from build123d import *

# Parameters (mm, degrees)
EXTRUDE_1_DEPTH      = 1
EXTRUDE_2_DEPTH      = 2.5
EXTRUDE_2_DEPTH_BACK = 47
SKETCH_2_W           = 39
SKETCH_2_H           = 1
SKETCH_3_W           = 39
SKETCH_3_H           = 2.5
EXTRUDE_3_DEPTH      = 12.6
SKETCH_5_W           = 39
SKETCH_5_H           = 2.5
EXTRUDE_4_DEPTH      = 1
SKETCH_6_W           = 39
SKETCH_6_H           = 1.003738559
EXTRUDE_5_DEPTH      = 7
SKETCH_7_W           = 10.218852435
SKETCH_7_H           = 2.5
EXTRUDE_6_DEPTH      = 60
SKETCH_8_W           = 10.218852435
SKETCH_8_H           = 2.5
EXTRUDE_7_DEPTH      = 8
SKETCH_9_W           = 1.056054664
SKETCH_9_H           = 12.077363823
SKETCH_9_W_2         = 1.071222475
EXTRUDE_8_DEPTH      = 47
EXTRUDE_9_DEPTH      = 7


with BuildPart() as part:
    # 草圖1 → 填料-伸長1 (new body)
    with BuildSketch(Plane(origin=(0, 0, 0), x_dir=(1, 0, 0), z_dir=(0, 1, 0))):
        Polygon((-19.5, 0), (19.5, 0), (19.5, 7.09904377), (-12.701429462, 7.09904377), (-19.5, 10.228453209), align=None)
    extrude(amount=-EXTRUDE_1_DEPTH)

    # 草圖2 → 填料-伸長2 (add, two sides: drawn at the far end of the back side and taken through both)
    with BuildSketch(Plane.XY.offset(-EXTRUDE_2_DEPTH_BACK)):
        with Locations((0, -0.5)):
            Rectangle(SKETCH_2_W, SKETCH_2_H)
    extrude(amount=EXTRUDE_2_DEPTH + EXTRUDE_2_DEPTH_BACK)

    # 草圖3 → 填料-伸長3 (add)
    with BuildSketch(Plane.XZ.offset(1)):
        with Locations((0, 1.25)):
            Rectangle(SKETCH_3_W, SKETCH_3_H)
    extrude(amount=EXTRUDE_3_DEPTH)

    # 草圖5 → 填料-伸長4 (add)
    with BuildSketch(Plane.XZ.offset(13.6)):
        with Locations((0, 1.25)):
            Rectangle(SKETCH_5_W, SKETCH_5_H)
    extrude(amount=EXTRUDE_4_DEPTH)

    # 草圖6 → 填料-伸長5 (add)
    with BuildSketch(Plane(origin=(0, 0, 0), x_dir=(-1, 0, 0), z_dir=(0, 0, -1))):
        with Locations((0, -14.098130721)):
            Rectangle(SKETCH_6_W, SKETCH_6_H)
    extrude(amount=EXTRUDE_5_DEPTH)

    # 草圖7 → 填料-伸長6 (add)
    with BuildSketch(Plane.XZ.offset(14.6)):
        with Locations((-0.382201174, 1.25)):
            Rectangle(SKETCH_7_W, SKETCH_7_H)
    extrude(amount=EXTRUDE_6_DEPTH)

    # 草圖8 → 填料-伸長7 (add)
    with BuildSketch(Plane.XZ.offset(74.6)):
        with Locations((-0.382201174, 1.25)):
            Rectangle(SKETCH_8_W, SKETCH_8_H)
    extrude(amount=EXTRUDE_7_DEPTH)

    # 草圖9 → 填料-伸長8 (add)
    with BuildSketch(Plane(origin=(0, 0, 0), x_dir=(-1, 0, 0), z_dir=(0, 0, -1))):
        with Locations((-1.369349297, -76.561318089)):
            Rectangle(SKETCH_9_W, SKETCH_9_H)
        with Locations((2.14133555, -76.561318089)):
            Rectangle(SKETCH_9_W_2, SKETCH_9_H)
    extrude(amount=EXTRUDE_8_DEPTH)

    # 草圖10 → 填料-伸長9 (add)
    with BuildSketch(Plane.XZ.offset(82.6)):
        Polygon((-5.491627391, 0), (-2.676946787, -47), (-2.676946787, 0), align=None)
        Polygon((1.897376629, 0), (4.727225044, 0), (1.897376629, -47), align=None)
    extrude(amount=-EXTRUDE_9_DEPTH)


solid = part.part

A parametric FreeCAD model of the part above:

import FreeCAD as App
import Part
import Sketcher

V = App.Vector
Q = App.Units.Quantity

doc = App.newDocument("Part")
body = doc.addObject("PartDesign::Body", "Body")

sketch1 = body.newObject("Sketcher::SketchObject", "Sketch")
sketch1.AttachmentSupport = (doc.getObject("XZ_Plane"), [""])
sketch1.MapMode = "FlatFace"
sketch1.addGeometry([
    Part.LineSegment(V(-19.5, 0, 0), V(19.5, 0, 0)),
    Part.LineSegment(V(19.5, 0, 0), V(19.5, -7.099044, 0)),
    Part.LineSegment(V(19.5, -7.099044, 0), V(-12.701429, -7.099044, 0)),
    Part.LineSegment(V(-12.701429, -7.099044, 0), V(-19.5, -10.228453, 0)),
    Part.LineSegment(V(-19.5, -10.228453, 0), V(-19.5, 0, 0)),
], False)
sketch1.addConstraint([
    Sketcher.Constraint("Coincident", 0, 2, 1, 1),
    Sketcher.Constraint("Coincident", 1, 2, 2, 1),
    Sketcher.Constraint("Coincident", 2, 2, 3, 1),
    Sketcher.Constraint("Coincident", 3, 2, 4, 1),
    Sketcher.Constraint("Coincident", 4, 2, 0, 1),
    Sketcher.Constraint("Horizontal", 0),
    Sketcher.Constraint("Vertical", 1),
    Sketcher.Constraint("Horizontal", 2),
    Sketcher.Constraint("Vertical", 4),
    Sketcher.Constraint("Symmetric", 0, 2, 4, 2, -1, 1),
    Sketcher.Constraint("DistanceX", 0, 1, 0, 2, Q("39 mm")),
    Sketcher.Constraint("DistanceX", 2, 2, 2, 1, Q("32.201429 mm")),
    Sketcher.Constraint("DistanceY", 1, 2, 1, 1, Q("7.099044 mm")),
    Sketcher.Constraint("DistanceY", 4, 1, 4, 2, Q("10.228453 mm")),
])
pad1 = body.newObject("PartDesign::Pad", "Pad")
pad1.Profile = sketch1
pad1.Length = 1

sketch2 = body.newObject("Sketcher::SketchObject", "Sketch001")
sketch2.AttachmentSupport = (doc.getObject("XY_Plane"), [""])
sketch2.MapMode = "FlatFace"
sketch2.addGeometry([
    Part.LineSegment(V(-19.5, 0, 0), V(-19.5, -1, 0)),
    Part.LineSegment(V(-19.5, -1, 0), V(19.5, -1, 0)),
    Part.LineSegment(V(19.5, -1, 0), V(19.5, 0, 0)),
    Part.LineSegment(V(19.5, 0, 0), V(-19.5, 0, 0)),
], False)
sketch2.addConstraint([
    Sketcher.Constraint("Coincident", 0, 2, 1, 1),
    Sketcher.Constraint("Coincident", 1, 2, 2, 1),
    Sketcher.Constraint("Coincident", 2, 2, 3, 1),
    Sketcher.Constraint("Coincident", 3, 2, 0, 1),
    Sketcher.Constraint("Vertical", 0),
    Sketcher.Constraint("Horizontal", 1),
    Sketcher.Constraint("Vertical", 2),
    Sketcher.Constraint("Horizontal", 3),
    Sketcher.Constraint("Symmetric", 2, 2, 3, 2, -1, 1),
    Sketcher.Constraint("DistanceX", 1, 1, 1, 2, Q("39 mm")),
    Sketcher.Constraint("DistanceY", 0, 2, 0, 1, Q("1 mm")),
])
pad2 = body.newObject("PartDesign::Pad", "Pad001")
pad2.Profile = sketch2
pad2.Type = "TwoLengths"
pad2.Length = 2.5
pad2.Length2 = 47

sketch3 = body.newObject("Sketcher::SketchObject", "Sketch002")
sketch3.AttachmentSupport = (doc.getObject("XZ_Plane"), [""])
sketch3.MapMode = "FlatFace"
sketch3.AttachmentOffset = App.Placement(V(0, 0, 1), App.Rotation())
sketch3.addGeometry([
    Part.LineSegment(V(-19.5, 2.5, 0), V(-19.5, 0, 0)),
    Part.LineSegment(V(-19.5, 0, 0), V(19.5, 0, 0)),
    Part.LineSegment(V(19.5, 0, 0), V(19.5, 2.5, 0)),
    Part.LineSegment(V(19.5, 2.5, 0), V(-19.5, 2.5, 0)),
], False)
sketch3.addConstraint([
    Sketcher.Constraint("Coincident", 0, 2, 1, 1),
    Sketcher.Constraint("Coincident", 1, 2, 2, 1),
    Sketcher.Constraint("Coincident", 2, 2, 3, 1),
    Sketcher.Constraint("Coincident", 3, 2, 0, 1),
    Sketcher.Constraint("Vertical", 0),
    Sketcher.Constraint("Horizontal", 1),
    Sketcher.Constraint("Vertical", 2),
    Sketcher.Constraint("Horizontal", 3),
    Sketcher.Constraint("Symmetric", 0, 2, 1, 2, -1, 1),
    Sketcher.Constraint("DistanceX", 1, 1, 1, 2, Q("39 mm")),
    Sketcher.Constraint("DistanceY", 0, 2, 0, 1, Q("2.5 mm")),
])
pad3 = body.newObject("PartDesign::Pad", "Pad002")
pad3.Profile = sketch3
pad3.Length = 12.6

sketch4 = body.newObject("Sketcher::SketchObject", "Sketch003")
sketch4.AttachmentSupport = (doc.getObject("XZ_Plane"), [""])
sketch4.MapMode = "FlatFace"
sketch4.AttachmentOffset = App.Placement(V(0, 0, 13.6), App.Rotation())
sketch4.addGeometry([
    Part.LineSegment(V(-19.5, 2.5, 0), V(-19.5, 0, 0)),
    Part.LineSegment(V(-19.5, 0, 0), V(19.5, 0, 0)),
    Part.LineSegment(V(19.5, 0, 0), V(19.5, 2.5, 0)),
    Part.LineSegment(V(19.5, 2.5, 0), V(-19.5, 2.5, 0)),
], False)
sketch4.addConstraint([
    Sketcher.Constraint("Coincident", 0, 2, 1, 1),
    Sketcher.Constraint("Coincident", 1, 2, 2, 1),
    Sketcher.Constraint("Coincident", 2, 2, 3, 1),
    Sketcher.Constraint("Coincident", 3, 2, 0, 1),
    Sketcher.Constraint("Vertical", 0),
    Sketcher.Constraint("Horizontal", 1),
    Sketcher.Constraint("Vertical", 2),
    Sketcher.Constraint("Horizontal", 3),
    Sketcher.Constraint("Symmetric", 0, 2, 1, 2, -1, 1),
    Sketcher.Constraint("DistanceX", 1, 1, 1, 2, Q("39 mm")),
    Sketcher.Constraint("DistanceY", 0, 2, 0, 1, Q("2.5 mm")),
])
pad4 = body.newObject("PartDesign::Pad", "Pad003")
pad4.Profile = sketch4
pad4.Length = 1

sketch5 = body.newObject("Sketcher::SketchObject", "Sketch004")
sketch5.AttachmentSupport = (doc.getObject("XY_Plane"), [""])
sketch5.MapMode = "FlatFace"
sketch5.addGeometry([
    Part.LineSegment(V(19.5, -13.596261, 0), V(19.5, -14.6, 0)),
    Part.LineSegment(V(19.5, -14.6, 0), V(-19.5, -14.6, 0)),
    Part.LineSegment(V(-19.5, -14.6, 0), V(-19.5, -13.596261, 0)),
    Part.LineSegment(V(-19.5, -13.596261, 0), V(19.5, -13.596261, 0)),
], False)
sketch5.addConstraint([
    Sketcher.Constraint("Coincident", 0, 2, 1, 1),
    Sketcher.Constraint("Coincident", 1, 2, 2, 1),
    Sketcher.Constraint("Coincident", 2, 2, 3, 1),
    Sketcher.Constraint("Coincident", 3, 2, 0, 1),
    Sketcher.Constraint("Vertical", 0),
    Sketcher.Constraint("Horizontal", 1),
    Sketcher.Constraint("Vertical", 2),
    Sketcher.Constraint("Horizontal", 3),
    Sketcher.Constraint("DistanceX", 1, 2, 1, 1, Q("39 mm")),
    Sketcher.Constraint("DistanceX", -1, 1, 0, 2, Q("19.5 mm")),
    Sketcher.Constraint("DistanceY", 0, 2, -1, 1, Q("14.6 mm")),
    Sketcher.Constraint("DistanceY", 0, 2, 0, 1, Q("1.003739 mm")),
])
pad5 = body.newObject("PartDesign::Pad", "Pad004")
pad5.Profile = sketch5
pad5.Length = 7
pad5.Reversed = True

sketch6 = body.newObject("Sketcher::SketchObject", "Sketch005")
sketch6.AttachmentSupport = (doc.getObject("XZ_Plane"), [""])
sketch6.MapMode = "FlatFace"
sketch6.AttachmentOffset = App.Placement(V(0, 0, 14.6), App.Rotation())
sketch6.addGeometry([
    Part.LineSegment(V(-5.491627, 2.5, 0), V(-5.491627, 0, 0)),
    Part.LineSegment(V(-5.491627, 0, 0), V(4.727225, 0, 0)),
    Part.LineSegment(V(4.727225, 0, 0), V(4.727225, 2.5, 0)),
    Part.LineSegment(V(4.727225, 2.5, 0), V(-5.491627, 2.5, 0)),
], False)
sketch6.addConstraint([
    Sketcher.Constraint("Coincident", 0, 2, 1, 1),
    Sketcher.Constraint("Coincident", 1, 2, 2, 1),
    Sketcher.Constraint("Coincident", 2, 2, 3, 1),
    Sketcher.Constraint("Coincident", 3, 2, 0, 1),
    Sketcher.Constraint("Vertical", 0),
    Sketcher.Constraint("Horizontal", 1),
    Sketcher.Constraint("Vertical", 2),
    Sketcher.Constraint("Horizontal", 3),
    Sketcher.Constraint("PointOnObject", 0, 2, -1),
    Sketcher.Constraint("DistanceY", 0, 2, 0, 1, Q("2.5 mm")),
    Sketcher.Constraint("DistanceX", 1, 1, 1, 2, Q("10.218852 mm")),
    Sketcher.Constraint("DistanceX", 0, 2, -1, 1, Q("5.491627 mm")),
])
pad6 = body.newObject("PartDesign::Pad", "Pad005")
pad6.Profile = sketch6
pad6.Length = 60

sketch7 = body.newObject("Sketcher::SketchObject", "Sketch006")
sketch7.AttachmentSupport = (doc.getObject("XZ_Plane"), [""])
sketch7.MapMode = "FlatFace"
sketch7.AttachmentOffset = App.Placement(V(0, 0, 74.6), App.Rotation())
sketch7.addGeometry([
    Part.LineSegment(V(-5.491627, 2.5, 0), V(-5.491627, 0, 0)),
    Part.LineSegment(V(-5.491627, 0, 0), V(4.727225, 0, 0)),
    Part.LineSegment(V(4.727225, 0, 0), V(4.727225, 2.5, 0)),
    Part.LineSegment(V(4.727225, 2.5, 0), V(-5.491627, 2.5, 0)),
], False)
sketch7.addConstraint([
    Sketcher.Constraint("Coincident", 0, 2, 1, 1),
    Sketcher.Constraint("Coincident", 1, 2, 2, 1),
    Sketcher.Constraint("Coincident", 2, 2, 3, 1),
    Sketcher.Constraint("Coincident", 3, 2, 0, 1),
    Sketcher.Constraint("Vertical", 0),
    Sketcher.Constraint("Horizontal", 1),
    Sketcher.Constraint("Vertical", 2),
    Sketcher.Constraint("Horizontal", 3),
    Sketcher.Constraint("PointOnObject", 0, 2, -1),
    Sketcher.Constraint("DistanceY", 0, 2, 0, 1, Q("2.5 mm")),
    Sketcher.Constraint("DistanceX", 1, 1, 1, 2, Q("10.218852 mm")),
    Sketcher.Constraint("DistanceX", 0, 2, -1, 1, Q("5.491627 mm")),
])
pad7 = body.newObject("PartDesign::Pad", "Pad006")
pad7.Profile = sketch7
pad7.Length = 8

sketch8 = body.newObject("Sketcher::SketchObject", "Sketch007")
sketch8.AttachmentSupport = (doc.getObject("XY_Plane"), [""])
sketch8.MapMode = "FlatFace"
sketch8.addGeometry([
    Part.LineSegment(V(1.897377, -70.522636, 0), V(1.897377, -82.6, 0)),
    Part.LineSegment(V(1.897377, -82.6, 0), V(0.841322, -82.6, 0)),
    Part.LineSegment(V(0.841322, -82.6, 0), V(0.841322, -70.522636, 0)),
    Part.LineSegment(V(0.841322, -70.522636, 0), V(1.897377, -70.522636, 0)),
    Part.LineSegment(V(-1.605724, -70.522636, 0), V(-1.605724, -82.6, 0)),
    Part.LineSegment(V(-1.605724, -82.6, 0), V(-2.676947, -82.6, 0)),
    Part.LineSegment(V(-2.676947, -82.6, 0), V(-2.676947, -70.522636, 0)),
    Part.LineSegment(V(-2.676947, -70.522636, 0), V(-1.605724, -70.522636, 0)),
], False)
sketch8.addConstraint([
    Sketcher.Constraint("Coincident", 0, 2, 1, 1),
    Sketcher.Constraint("Coincident", 1, 2, 2, 1),
    Sketcher.Constraint("Coincident", 2, 2, 3, 1),
    Sketcher.Constraint("Coincident", 3, 2, 0, 1),
    Sketcher.Constraint("Coincident", 4, 2, 5, 1),
    Sketcher.Constraint("Coincident", 5, 2, 6, 1),
    Sketcher.Constraint("Coincident", 6, 2, 7, 1),
    Sketcher.Constraint("Coincident", 7, 2, 4, 1),
    Sketcher.Constraint("Vertical", 0),
    Sketcher.Constraint("Horizontal", 1),
    Sketcher.Constraint("Vertical", 2),
    Sketcher.Constraint("Horizontal", 3),
    Sketcher.Constraint("Vertical", 4),
    Sketcher.Constraint("Horizontal", 5),
    Sketcher.Constraint("Vertical", 6),
    Sketcher.Constraint("Horizontal", 7),
    Sketcher.Constraint("Horizontal", 1, 2, 4, 2),
    Sketcher.Constraint("Horizontal", 3, 2, 6, 2),
    Sketcher.Constraint("DistanceY", 0, 2, -1, 1, Q("82.6 mm")),
    Sketcher.Constraint("DistanceX", 4, 2, 0, 2, Q("3.503101 mm")),
    Sketcher.Constraint("DistanceX", 1, 2, 1, 1, Q("1.056055 mm")),
    Sketcher.Constraint("DistanceX", 5, 2, 5, 1, Q("1.071222 mm")),
    Sketcher.Constraint("DistanceY", 0, 2, 0, 1, Q("12.077364 mm")),
    Sketcher.Constraint("DistanceX", -1, 1, 1, 2, Q("0.841322 mm")),
])
pad8 = body.newObject("PartDesign::Pad", "Pad007")
pad8.Profile = sketch8
pad8.Length = 47
pad8.Reversed = True

sketch9 = body.newObject("Sketcher::SketchObject", "Sketch008")
sketch9.AttachmentSupport = (doc.getObject("XZ_Plane"), [""])
sketch9.MapMode = "FlatFace"
sketch9.AttachmentOffset = App.Placement(V(0, 0, 82.6), App.Rotation())
sketch9.addGeometry([
    Part.LineSegment(V(-5.491627, 0, 0), V(-2.676947, -47, 0)),
    Part.LineSegment(V(-2.676947, -47, 0), V(-2.676947, 0, 0)),
    Part.LineSegment(V(-2.676947, 0, 0), V(-5.491627, 0, 0)),
    Part.LineSegment(V(4.727225, 0, 0), V(1.897377, 0, 0)),
    Part.LineSegment(V(1.897377, 0, 0), V(1.897377, -47, 0)),
    Part.LineSegment(V(1.897377, -47, 0), V(4.727225, 0, 0)),
], False)
sketch9.addConstraint([
    Sketcher.Constraint("Coincident", 0, 2, 1, 1),
    Sketcher.Constraint("Coincident", 1, 2, 2, 1),
    Sketcher.Constraint("Coincident", 2, 2, 0, 1),
    Sketcher.Constraint("Coincident", 3, 2, 4, 1),
    Sketcher.Constraint("Coincident", 4, 2, 5, 1),
    Sketcher.Constraint("Coincident", 5, 2, 3, 1),
    Sketcher.Constraint("Vertical", 1),
    Sketcher.Constraint("Horizontal", 2),
    Sketcher.Constraint("Horizontal", 3),
    Sketcher.Constraint("Vertical", 4),
    Sketcher.Constraint("PointOnObject", 1, 2, -1),
    Sketcher.Constraint("PointOnObject", 3, 2, -1),
    Sketcher.Constraint("Horizontal", 0, 2, 4, 2),
    Sketcher.Constraint("DistanceY", 1, 1, 1, 2, Q("47 mm")),
    Sketcher.Constraint("DistanceX", 2, 2, 2, 1, Q("2.814681 mm")),
    Sketcher.Constraint("DistanceX", 3, 2, 3, 1, Q("2.829848 mm")),
    Sketcher.Constraint("DistanceX", 1, 2, 5, 2, Q("7.404172 mm")),
    Sketcher.Constraint("DistanceX", 0, 2, -1, 1, Q("2.676947 mm")),
])
pad9 = body.newObject("PartDesign::Pad", "Pad008")
pad9.Profile = sketch9
pad9.Length = 7
pad9.Reversed = True

doc.recompute()
